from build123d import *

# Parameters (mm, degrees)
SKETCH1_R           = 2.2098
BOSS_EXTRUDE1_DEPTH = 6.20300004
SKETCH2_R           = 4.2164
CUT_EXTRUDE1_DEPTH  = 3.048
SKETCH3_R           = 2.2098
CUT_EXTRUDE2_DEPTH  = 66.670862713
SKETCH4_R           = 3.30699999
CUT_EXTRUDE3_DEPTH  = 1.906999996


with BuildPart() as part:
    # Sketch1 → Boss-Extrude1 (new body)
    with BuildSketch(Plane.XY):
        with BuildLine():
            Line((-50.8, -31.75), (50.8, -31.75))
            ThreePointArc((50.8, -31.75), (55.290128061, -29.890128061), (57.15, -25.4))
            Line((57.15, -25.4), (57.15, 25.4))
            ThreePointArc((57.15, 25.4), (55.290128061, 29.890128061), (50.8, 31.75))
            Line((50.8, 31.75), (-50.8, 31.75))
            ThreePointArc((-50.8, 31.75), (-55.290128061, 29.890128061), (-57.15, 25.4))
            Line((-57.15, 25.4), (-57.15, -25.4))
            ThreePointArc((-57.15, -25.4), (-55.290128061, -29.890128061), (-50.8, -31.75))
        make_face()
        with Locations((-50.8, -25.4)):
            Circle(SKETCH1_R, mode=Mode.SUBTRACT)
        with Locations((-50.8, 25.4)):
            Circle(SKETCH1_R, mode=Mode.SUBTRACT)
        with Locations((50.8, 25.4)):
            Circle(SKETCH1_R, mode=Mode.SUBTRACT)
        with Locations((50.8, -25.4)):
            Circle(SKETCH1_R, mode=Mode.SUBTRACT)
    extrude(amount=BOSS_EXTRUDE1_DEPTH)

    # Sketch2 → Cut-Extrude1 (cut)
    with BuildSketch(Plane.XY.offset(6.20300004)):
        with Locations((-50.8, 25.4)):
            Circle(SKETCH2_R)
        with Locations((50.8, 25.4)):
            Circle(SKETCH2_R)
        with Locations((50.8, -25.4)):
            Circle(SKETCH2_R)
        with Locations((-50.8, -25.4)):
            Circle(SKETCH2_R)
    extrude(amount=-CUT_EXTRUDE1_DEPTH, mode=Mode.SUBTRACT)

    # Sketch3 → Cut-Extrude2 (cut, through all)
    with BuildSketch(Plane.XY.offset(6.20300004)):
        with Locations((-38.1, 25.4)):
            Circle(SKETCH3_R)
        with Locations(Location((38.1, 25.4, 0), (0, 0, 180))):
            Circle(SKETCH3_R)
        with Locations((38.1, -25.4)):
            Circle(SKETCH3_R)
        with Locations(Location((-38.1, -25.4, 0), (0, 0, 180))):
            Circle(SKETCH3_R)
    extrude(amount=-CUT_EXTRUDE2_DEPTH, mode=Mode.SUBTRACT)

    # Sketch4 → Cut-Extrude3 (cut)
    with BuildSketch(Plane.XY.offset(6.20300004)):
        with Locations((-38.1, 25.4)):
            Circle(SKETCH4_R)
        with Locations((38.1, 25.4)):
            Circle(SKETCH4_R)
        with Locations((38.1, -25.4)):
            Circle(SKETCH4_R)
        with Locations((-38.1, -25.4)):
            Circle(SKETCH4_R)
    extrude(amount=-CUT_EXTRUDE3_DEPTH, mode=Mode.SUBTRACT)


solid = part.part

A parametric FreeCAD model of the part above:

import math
import FreeCAD as App
import Part
import Sketcher
Q = App.Units.Quantity

doc = App.newDocument("Part")
body = doc.addObject("PartDesign::Body", "Body")

sketch1 = body.newObject("Sketcher::SketchObject", "Sketch")
sketch1.AttachmentSupport = (doc.getObject("XY_Plane"), [""])
sketch1.MapMode = "FlatFace"
sketch1.addGeometry([
    Part.LineSegment(App.Vector(-50.8, -31.8, 0), App.Vector(50.8, -31.8, 0)),
    Part.ArcOfCircle(Part.Circle(App.Vector(50.8, -25.4, 0), App.Vector(0, 0, 1), 6.3), math.radians(-90), math.radians(0)),
    Part.LineSegment(App.Vector(57.1, -25.4, 0), App.Vector(57.1, 25.4, 0)),
    Part.ArcOfCircle(Part.Circle(App.Vector(50.8, 25.4, 0), App.Vector(0, 0, 1), 6.3), math.radians(0), math.radians(90)),
    Part.LineSegment(App.Vector(50.8, 31.8, 0), App.Vector(-50.8, 31.8, 0)),
    Part.ArcOfCircle(Part.Circle(App.Vector(-50.8, 25.4, 0), App.Vector(0, 0, 1), 6.3), math.radians(90), math.radians(180)),
    Part.LineSegment(App.Vector(-57.1, 25.4, 0), App.Vector(-57.1, -25.4, 0)),
    Part.ArcOfCircle(Part.Circle(App.Vector(-50.8, -25.4, 0), App.Vector(0, 0, 1), 6.3), math.radians(180), math.radians(270)),
    Part.Circle(App.Vector(-50.8, -25.4, 0), App.Vector(0, 0, 1), 2.2),
    Part.Circle(App.Vector(50.8, -25.4, 0), App.Vector(0, 0, 1), 2.2),
    Part.Circle(App.Vector(-50.8, 25.4, 0), App.Vector(0, 0, 1), 2.2),
    Part.Circle(App.Vector(50.8, 25.4, 0), App.Vector(0, 0, 1), 2.2),
], False)
sketch1.addConstraint([
    Sketcher.Constraint("Tangent", 0, 2, 1, 1),
    Sketcher.Constraint("Tangent", 1, 2, 2, 1),
    Sketcher.Constraint("Tangent", 2, 2, 3, 1),
    Sketcher.Constraint("Tangent", 3, 2, 4, 1),
    Sketcher.Constraint("Tangent", 4, 2, 5, 1),
    Sketcher.Constraint("Tangent", 5, 2, 6, 1),
    Sketcher.Constraint("Tangent", 6, 2, 7, 1),
    Sketcher.Constraint("Tangent", 7, 2, 0, 1),
    Sketcher.Constraint("Horizontal", 0),
    Sketcher.Constraint("Vertical", 2),
    Sketcher.Constraint("Horizontal", 4),
    Sketcher.Constraint("Vertical", 6),
    Sketcher.Constraint("Coincident", 8, 3, 7, 3),
    Sketcher.Constraint("Coincident", 9, 3, 1, 3),
    Sketcher.Constraint("Coincident", 10, 3, 5, 3),
    Sketcher.Constraint("Coincident", 11, 3, 3, 3),
    Sketcher.Constraint("Equal", 1, 3),
    Sketcher.Constraint("Equal", 3, 5),
    Sketcher.Constraint("Equal", 5, 7),
    Sketcher.Constraint("Equal", 8, 9),
    Sketcher.Constraint("Equal", 9, 10),
    Sketcher.Constraint("Equal", 10, 11),
    Sketcher.Constraint("Symmetric", 1, 3, 5, 3, -1, 1),
    Sketcher.Constraint("DistanceX", 0, 1, 0, 2, Q("4 in")),
    Sketcher.Constraint("DistanceY", 2, 1, 2, 2, Q("2 in")),
    Sketcher.Constraint("Radius", 1, Q("0.25 in")),
    Sketcher.Constraint("Diameter", 8, Q("0.174 in")),
])
pad1 = body.newObject("PartDesign::Pad", "Pad")
pad1.Profile = sketch1
pad1.Length = 6.203

sketch2 = body.newObject("Sketcher::SketchObject", "Sketch001")
sketch2.AttachmentSupport = (doc.getObject("XY_Plane"), [""])
sketch2.MapMode = "FlatFace"
sketch2.AttachmentOffset = App.Placement(App.Vector(0, 0, 6.203), App.Rotation())
sketch2.addGeometry([
    Part.Circle(App.Vector(-50.8, 25.4, 0), App.Vector(0, 0, 1), 4.2),
    Part.Circle(App.Vector(50.8, 25.4, 0), App.Vector(0, 0, 1), 4.2),
    Part.Circle(App.Vector(50.8, -25.4, 0), App.Vector(0, 0, 1), 4.2),
    Part.Circle(App.Vector(-50.8, -25.4, 0), App.Vector(0, 0, 1), 4.2),
], False)
sketch2.addConstraint([
    Sketcher.Constraint("Equal", 0, 1),
    Sketcher.Constraint("Equal", 1, 2),
    Sketcher.Constraint("Equal", 2, 3),
    Sketcher.Constraint("Symmetric", 0, 3, 2, 3, -1, 1),
    Sketcher.Constraint("Symmetric", 1, 3, 3, 3, -1, 1),
    Sketcher.Constraint("Symmetric", 0, 3, 1, 3, -2),
    Sketcher.Constraint("Diameter", 0, Q("0.332 in")),
    Sketcher.Constraint("DistanceX", 0, 3, -1, 1, Q("2 in")),
    Sketcher.Constraint("DistanceY", -1, 1, 0, 3, Q("1 in")),
])
pocket1 = body.newObject("PartDesign::Pocket", "Pocket")
pocket1.Profile = sketch2
pocket1.Length = Q("0.12 in")

sketch3 = body.newObject("Sketcher::SketchObject", "Sketch002")
sketch3.AttachmentSupport = (doc.getObject("XY_Plane"), [""])
sketch3.MapMode = "FlatFace"
sketch3.AttachmentOffset = App.Placement(App.Vector(0, 0, 6.203), App.Rotation())
sketch3.addGeometry([
    Part.Circle(App.Vector(-38.1, 25.4, 0), App.Vector(0, 0, 1), 2.2),
    Part.Circle(App.Vector(38.1, 25.4, 0), App.Vector(0, 0, 1), 2.2),
    Part.Circle(App.Vector(38.1, -25.4, 0), App.Vector(0, 0, 1), 2.2),
    Part.Circle(App.Vector(-38.1, -25.4, 0), App.Vector(0, 0, 1), 2.2),
], False)
sketch3.addConstraint([
    Sketcher.Constraint("Equal", 0, 1),
    Sketcher.Constraint("Equal", 1, 2),
    Sketcher.Constraint("Equal", 2, 3),
    Sketcher.Constraint("Symmetric", 0, 3, 2, 3, -1, 1),
    Sketcher.Constraint("Symmetric", 1, 3, 3, 3, -1, 1),
    Sketcher.Constraint("Symmetric", 0, 3, 1, 3, -2),
    Sketcher.Constraint("Diameter", 0, Q("0.174 in")),
    Sketcher.Constraint("DistanceY", -1, 1, 0, 3, Q("1 in")),
    Sketcher.Constraint("DistanceX", 0, 3, 1, 3, Q("3 in")),
])
pocket2 = body.newObject("PartDesign::Pocket", "Pocket001")
pocket2.Profile = sketch3
pocket2.Type = "ThroughAll"

sketch4 = body.newObject("Sketcher::SketchObject", "Sketch003")
sketch4.AttachmentSupport = (doc.getObject("XY_Plane"), [""])
sketch4.MapMode = "FlatFace"
sketch4.AttachmentOffset = App.Placement(App.Vector(0, 0, 6.203), App.Rotation())
sketch4.addGeometry([
    Part.Circle(App.Vector(-38.1, 25.4, 0), App.Vector(0, 0, 1), 3.3),
    Part.Circle(App.Vector(38.1, 25.4, 0), App.Vector(0, 0, 1), 3.3),
    Part.Circle(App.Vector(38.1, -25.4, 0), App.Vector(0, 0, 1), 3.3),
    Part.Circle(App.Vector(-38.1, -25.4, 0), App.Vector(0, 0, 1), 3.3),
], False)
sketch4.addConstraint([
    Sketcher.Constraint("Equal", 0, 1),
    Sketcher.Constraint("Equal", 1, 2),
    Sketcher.Constraint("Equal", 2, 3),
    Sketcher.Constraint("Symmetric", 0, 3, 2, 3, -1, 1),
    Sketcher.Constraint("Symmetric", 1, 3, 3, 3, -1, 1),
    Sketcher.Constraint("Symmetric", 0, 3, 1, 3, -2),
    Sketcher.Constraint("DistanceY", -1, 1, 0, 3, Q("1 in")),
    Sketcher.Constraint("DistanceX", 0, 3, 1, 3, Q("3 in")),
    Sketcher.Constraint("Diameter", 0, 6.614),
])
pocket3 = body.newObject("PartDesign::Pocket", "Pocket002")
pocket3.Profile = sketch4
pocket3.Length = 1.907

doc.recompute()
